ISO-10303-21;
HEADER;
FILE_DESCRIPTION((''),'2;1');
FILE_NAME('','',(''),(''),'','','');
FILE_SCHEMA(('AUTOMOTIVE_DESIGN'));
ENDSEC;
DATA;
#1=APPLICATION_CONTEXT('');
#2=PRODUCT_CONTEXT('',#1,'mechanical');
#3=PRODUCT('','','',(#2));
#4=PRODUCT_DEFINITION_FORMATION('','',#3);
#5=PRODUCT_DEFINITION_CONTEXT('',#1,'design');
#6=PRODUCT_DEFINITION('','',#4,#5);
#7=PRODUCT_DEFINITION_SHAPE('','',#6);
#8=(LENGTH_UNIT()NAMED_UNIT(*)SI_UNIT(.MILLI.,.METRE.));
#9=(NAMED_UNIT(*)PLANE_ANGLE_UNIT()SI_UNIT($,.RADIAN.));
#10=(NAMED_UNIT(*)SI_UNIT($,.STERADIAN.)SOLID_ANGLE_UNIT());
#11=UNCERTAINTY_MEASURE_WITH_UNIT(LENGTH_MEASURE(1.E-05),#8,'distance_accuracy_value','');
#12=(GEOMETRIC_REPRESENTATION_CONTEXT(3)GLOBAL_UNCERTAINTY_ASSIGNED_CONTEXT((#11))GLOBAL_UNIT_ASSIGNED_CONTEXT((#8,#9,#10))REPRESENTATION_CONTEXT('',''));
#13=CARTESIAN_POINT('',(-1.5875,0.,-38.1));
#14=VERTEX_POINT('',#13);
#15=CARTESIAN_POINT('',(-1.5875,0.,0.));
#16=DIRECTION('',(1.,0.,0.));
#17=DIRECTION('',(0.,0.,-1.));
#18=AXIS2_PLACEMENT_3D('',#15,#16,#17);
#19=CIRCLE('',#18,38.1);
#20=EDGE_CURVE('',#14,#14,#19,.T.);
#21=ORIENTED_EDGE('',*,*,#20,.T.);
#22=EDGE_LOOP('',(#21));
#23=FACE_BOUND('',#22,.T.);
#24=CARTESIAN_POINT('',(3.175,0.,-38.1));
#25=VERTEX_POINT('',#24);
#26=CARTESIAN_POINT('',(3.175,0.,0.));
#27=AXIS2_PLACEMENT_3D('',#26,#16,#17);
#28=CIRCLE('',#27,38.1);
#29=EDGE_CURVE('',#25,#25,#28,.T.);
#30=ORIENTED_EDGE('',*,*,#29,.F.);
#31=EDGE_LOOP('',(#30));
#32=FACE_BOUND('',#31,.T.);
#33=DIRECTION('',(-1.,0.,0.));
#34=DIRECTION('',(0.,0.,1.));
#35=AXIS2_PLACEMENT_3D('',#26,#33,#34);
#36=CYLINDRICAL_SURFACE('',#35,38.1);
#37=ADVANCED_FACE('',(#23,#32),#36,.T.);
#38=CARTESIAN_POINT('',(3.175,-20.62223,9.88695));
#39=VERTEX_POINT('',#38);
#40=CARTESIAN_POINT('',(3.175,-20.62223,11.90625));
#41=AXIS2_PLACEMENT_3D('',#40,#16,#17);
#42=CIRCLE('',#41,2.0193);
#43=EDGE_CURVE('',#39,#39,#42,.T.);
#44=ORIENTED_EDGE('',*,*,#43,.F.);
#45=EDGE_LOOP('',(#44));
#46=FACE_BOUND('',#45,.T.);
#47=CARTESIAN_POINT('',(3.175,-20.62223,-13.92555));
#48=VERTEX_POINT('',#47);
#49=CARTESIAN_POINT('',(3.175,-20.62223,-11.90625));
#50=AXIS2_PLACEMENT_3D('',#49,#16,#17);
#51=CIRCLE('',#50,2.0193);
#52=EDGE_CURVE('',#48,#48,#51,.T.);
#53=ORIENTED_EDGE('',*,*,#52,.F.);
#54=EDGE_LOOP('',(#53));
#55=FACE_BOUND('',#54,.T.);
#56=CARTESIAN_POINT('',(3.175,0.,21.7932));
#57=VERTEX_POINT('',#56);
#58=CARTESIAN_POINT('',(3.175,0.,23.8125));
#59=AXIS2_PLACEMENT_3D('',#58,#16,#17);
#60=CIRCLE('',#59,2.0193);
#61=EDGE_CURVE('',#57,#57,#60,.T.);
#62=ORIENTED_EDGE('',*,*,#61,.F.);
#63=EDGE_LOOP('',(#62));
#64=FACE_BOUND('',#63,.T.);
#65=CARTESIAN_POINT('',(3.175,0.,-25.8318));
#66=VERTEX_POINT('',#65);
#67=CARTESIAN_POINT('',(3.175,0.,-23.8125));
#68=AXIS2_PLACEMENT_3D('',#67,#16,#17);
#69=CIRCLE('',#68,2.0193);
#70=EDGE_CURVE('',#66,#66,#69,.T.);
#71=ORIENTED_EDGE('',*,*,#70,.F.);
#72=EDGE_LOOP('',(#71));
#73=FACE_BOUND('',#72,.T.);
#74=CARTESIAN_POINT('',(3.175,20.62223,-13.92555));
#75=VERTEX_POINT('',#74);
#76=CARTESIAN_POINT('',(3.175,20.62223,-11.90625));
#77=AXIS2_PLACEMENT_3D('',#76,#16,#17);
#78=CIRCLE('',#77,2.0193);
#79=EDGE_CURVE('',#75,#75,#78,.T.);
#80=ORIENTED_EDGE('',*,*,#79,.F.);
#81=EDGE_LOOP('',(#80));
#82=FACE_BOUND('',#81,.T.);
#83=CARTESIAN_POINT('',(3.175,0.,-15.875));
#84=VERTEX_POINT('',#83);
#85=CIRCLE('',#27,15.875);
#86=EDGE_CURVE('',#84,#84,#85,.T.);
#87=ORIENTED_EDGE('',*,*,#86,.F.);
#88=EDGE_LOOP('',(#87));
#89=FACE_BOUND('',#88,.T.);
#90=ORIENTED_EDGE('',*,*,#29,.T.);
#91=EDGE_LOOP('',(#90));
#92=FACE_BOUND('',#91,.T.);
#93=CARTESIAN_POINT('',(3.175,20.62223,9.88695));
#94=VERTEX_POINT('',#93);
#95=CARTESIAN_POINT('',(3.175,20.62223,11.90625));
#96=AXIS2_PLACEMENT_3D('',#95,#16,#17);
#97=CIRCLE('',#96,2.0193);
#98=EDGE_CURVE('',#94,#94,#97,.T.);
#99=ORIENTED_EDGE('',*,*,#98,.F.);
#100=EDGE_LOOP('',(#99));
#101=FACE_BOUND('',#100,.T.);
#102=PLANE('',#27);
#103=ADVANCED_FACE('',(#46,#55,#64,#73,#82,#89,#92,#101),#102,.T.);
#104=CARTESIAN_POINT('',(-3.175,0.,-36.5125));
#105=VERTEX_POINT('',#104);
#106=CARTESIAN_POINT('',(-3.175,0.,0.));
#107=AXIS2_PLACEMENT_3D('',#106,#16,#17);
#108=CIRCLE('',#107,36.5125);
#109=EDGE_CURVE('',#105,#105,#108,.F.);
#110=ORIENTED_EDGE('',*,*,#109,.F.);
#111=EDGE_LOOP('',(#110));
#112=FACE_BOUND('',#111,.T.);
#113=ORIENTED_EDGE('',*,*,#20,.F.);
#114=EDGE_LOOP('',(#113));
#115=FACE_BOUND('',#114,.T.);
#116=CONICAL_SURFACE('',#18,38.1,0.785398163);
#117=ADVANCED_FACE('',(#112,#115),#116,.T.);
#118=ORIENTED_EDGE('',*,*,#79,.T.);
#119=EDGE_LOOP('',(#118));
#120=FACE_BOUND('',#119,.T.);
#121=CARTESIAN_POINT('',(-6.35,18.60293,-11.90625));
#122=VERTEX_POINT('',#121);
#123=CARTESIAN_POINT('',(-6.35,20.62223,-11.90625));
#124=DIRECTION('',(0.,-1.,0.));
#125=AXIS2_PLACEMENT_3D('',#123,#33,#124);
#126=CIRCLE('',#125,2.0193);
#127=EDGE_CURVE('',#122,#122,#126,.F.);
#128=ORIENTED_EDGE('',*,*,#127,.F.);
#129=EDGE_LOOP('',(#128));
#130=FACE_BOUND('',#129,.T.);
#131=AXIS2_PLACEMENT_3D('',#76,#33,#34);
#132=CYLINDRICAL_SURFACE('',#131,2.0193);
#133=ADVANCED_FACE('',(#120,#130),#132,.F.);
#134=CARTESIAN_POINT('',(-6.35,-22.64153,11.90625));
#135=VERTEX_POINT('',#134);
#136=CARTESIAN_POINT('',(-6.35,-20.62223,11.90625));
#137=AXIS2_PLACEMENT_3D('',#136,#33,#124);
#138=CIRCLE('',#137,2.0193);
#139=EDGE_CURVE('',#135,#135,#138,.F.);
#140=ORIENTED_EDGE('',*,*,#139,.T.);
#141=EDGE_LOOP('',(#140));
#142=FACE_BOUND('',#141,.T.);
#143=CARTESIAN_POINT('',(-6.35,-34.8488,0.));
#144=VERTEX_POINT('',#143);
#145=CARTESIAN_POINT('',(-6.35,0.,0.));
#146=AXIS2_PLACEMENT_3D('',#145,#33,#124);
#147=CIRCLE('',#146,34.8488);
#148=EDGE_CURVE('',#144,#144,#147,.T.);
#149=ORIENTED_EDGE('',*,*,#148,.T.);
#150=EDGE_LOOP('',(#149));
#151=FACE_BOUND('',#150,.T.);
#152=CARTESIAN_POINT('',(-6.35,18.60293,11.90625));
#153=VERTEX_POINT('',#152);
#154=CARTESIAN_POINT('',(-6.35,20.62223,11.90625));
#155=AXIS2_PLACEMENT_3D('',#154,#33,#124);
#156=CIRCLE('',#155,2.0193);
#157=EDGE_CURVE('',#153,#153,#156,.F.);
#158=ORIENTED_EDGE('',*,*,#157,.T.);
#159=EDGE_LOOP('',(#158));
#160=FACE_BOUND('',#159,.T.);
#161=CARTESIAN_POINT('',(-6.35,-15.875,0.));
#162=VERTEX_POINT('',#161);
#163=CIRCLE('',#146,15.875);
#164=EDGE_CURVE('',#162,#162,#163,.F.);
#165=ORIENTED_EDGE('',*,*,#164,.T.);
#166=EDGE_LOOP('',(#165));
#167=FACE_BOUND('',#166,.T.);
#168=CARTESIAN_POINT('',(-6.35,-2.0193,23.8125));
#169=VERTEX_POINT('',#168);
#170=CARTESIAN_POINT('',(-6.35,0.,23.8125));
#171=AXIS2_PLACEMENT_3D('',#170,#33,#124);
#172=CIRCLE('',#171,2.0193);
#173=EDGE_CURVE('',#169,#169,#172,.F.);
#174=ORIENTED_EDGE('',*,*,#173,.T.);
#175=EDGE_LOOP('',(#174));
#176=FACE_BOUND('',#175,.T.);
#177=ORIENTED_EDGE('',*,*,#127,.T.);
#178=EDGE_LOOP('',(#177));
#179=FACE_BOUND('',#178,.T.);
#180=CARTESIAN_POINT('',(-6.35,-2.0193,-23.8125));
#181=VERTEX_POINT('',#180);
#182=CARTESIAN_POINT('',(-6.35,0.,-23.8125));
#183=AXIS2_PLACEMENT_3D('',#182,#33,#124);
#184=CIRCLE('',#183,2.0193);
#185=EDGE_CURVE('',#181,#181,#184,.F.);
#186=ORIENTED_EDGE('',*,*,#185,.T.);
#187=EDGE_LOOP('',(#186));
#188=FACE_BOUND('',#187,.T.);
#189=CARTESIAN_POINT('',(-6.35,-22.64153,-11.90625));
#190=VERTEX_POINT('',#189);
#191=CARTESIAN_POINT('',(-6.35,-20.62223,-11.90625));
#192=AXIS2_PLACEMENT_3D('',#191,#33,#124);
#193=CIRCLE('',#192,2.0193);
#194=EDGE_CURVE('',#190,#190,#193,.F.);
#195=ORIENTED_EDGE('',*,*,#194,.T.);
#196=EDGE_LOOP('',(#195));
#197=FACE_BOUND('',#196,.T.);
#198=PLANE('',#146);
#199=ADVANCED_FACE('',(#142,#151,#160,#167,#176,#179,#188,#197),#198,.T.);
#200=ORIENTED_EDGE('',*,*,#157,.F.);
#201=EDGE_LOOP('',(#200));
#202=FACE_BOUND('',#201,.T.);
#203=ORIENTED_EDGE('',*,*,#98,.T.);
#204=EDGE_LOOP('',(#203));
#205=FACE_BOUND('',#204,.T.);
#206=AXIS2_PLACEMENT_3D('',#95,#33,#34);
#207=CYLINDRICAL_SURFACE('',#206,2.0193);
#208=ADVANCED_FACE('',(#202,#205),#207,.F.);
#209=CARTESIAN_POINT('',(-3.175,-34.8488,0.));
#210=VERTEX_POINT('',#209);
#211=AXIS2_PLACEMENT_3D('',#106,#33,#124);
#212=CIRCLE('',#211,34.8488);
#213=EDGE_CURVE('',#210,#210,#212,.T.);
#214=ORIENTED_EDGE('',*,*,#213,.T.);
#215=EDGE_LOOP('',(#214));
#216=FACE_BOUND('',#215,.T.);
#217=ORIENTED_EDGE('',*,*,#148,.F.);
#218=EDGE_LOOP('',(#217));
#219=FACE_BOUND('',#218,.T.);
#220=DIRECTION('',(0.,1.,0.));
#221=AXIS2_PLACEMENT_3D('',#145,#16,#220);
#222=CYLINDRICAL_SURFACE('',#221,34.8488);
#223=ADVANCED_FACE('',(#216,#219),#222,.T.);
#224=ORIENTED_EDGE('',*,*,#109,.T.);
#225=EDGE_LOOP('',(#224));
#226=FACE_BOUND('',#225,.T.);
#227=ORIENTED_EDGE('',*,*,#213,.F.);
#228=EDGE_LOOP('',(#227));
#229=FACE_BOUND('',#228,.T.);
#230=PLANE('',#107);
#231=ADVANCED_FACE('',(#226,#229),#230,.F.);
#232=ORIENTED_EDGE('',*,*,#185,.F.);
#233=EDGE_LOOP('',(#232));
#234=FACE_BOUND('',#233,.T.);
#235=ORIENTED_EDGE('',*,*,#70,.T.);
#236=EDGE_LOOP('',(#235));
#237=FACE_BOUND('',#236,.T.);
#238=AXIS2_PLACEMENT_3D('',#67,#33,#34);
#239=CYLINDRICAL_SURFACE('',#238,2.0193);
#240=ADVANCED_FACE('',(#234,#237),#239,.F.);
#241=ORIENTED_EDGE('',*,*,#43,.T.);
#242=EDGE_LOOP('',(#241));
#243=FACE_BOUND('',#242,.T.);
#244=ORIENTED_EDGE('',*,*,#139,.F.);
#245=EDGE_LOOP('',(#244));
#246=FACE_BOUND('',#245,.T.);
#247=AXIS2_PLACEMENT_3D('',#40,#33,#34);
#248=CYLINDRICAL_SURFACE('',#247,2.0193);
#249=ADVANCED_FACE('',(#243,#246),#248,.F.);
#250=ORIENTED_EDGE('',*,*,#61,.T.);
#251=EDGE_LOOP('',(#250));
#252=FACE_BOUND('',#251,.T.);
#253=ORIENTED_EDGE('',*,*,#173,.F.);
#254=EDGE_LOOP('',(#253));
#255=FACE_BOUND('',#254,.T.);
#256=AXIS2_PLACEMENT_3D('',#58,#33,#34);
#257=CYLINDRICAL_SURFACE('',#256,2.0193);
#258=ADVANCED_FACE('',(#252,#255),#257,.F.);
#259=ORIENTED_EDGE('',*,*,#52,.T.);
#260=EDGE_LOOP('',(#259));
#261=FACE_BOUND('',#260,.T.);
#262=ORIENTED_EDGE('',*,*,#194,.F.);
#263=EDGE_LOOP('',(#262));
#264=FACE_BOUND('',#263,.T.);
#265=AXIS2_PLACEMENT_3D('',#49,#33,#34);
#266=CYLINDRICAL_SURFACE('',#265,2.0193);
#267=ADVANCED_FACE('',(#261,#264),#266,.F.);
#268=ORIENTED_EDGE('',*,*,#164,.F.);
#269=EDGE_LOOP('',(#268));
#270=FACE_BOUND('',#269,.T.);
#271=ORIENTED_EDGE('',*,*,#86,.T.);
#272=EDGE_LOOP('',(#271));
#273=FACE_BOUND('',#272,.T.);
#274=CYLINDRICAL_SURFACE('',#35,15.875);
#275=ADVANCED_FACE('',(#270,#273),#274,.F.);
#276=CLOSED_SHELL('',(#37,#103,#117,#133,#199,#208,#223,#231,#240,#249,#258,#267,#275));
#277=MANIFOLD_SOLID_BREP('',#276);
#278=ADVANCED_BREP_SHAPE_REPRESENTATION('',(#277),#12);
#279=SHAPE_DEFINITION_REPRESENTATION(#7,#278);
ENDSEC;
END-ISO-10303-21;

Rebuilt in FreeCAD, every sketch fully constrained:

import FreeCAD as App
import Part
import Sketcher

V = App.Vector
Q = App.Units.Quantity


def edges_at(feature, points):
    """Names of the edges that pass closest to the given points."""
    edges = feature.Shape.Edges
    near = lambda p: min(range(len(edges)), key=lambda i: edges[i].distToShape(Part.Vertex(*p))[0])
    return sorted({f"Edge{near(p) + 1}" for p in points})

doc = App.newDocument("Part")
body = doc.addObject("PartDesign::Body", "Body")

sketch1 = body.newObject("Sketcher::SketchObject", "Sketch")
sketch1.AttachmentSupport = (doc.getObject("YZ_Plane"), [""])
sketch1.MapMode = "FlatFace"
sketch1.addGeometry([
    Part.Circle(V(0, 0, 0), V(0, 0, 1), 38.1),
    Part.Circle(V(-20.6, 11.9, 0), V(0, 0, 1), 2),
    Part.Circle(V(-20.6, -11.9, 0), V(0, 0, 1), 2),
    Part.Circle(V(0, 23.8, 0), V(0, 0, 1), 2),
    Part.Circle(V(0, 0, 0), V(0, 0, 1), 15.9),
    Part.Circle(V(20.6, 11.9, 0), V(0, 0, 1), 2),
    Part.Circle(V(0, -23.8, 0), V(0, 0, 1), 2),
    Part.Circle(V(20.6, -11.9, 0), V(0, 0, 1), 2),
], False)
sketch1.addConstraint([
    Sketcher.Constraint("Coincident", 0, 3, -1, 1),
    Sketcher.Constraint("Coincident", 4, 3, -1, 1),
    Sketcher.Constraint("Equal", 1, 2),
    Sketcher.Constraint("Equal", 2, 3),
    Sketcher.Constraint("Equal", 3, 5),
    Sketcher.Constraint("Equal", 5, 6),
    Sketcher.Constraint("Equal", 6, 7),
    Sketcher.Constraint("Symmetric", 2, 3, 5, 3, -1, 1),
    Sketcher.Constraint("Symmetric", 3, 3, 6, 3, -1, 1),
    Sketcher.Constraint("Symmetric", 1, 3, 7, 3, -1, 1),
    Sketcher.Constraint("Symmetric", 1, 3, 5, 3, -2),
    Sketcher.Constraint("PointOnObject", 3, 3, -2),
    Sketcher.Constraint("Diameter", 0, Q("3 in")),
    Sketcher.Constraint("Diameter", 4, Q("1.25 in")),
    Sketcher.Constraint("Diameter", 1, Q("0.159 in")),
    Sketcher.Constraint("DistanceY", -1, 1, 1, 3, Q("0.46875 in")),
    Sketcher.Constraint("DistanceY", -1, 1, 3, 3, Q("0.9375 in")),
    Sketcher.Constraint("DistanceX", 1, 3, -1, 1, Q("20.62223 mm")),
])
pad1 = body.newObject("PartDesign::Pad", "Pad")
pad1.Profile = sketch1
pad1.Length = Q("0.25 in")
pad1.Midplane = True

sketch2 = body.newObject("Sketcher::SketchObject", "Sketch001")
sketch2.AttachmentSupport = (doc.getObject("YZ_Plane"), [""])
sketch2.MapMode = "FlatFace"
sketch2.AttachmentOffset = App.Placement(V(0, 0, -0.25 * 25.4), App.Rotation())
sketch2.addGeometry([
    Part.Circle(V(0, 0, 0), V(0, 0, 1), 34.8),
    Part.Circle(V(20.6, -11.9, 0), V(0, 0, 1), 2),
    Part.Circle(V(0, -23.8, 0), V(0, 0, 1), 2),
    Part.Circle(V(0, 0, 0), V(0, 0, 1), 15.9),
    Part.Circle(V(-20.6, -11.9, 0), V(0, 0, 1), 2),
    Part.Circle(V(20.6, 11.9, 0), V(0, 0, 1), 2),
    Part.Circle(V(0, 23.8, 0), V(0, 0, 1), 2),
    Part.Circle(V(-20.6, 11.9, 0), V(0, 0, 1), 2),
], False)
sketch2.addConstraint([
    Sketcher.Constraint("Coincident", 0, 3, -1, 1),
    Sketcher.Constraint("Coincident", 3, 3, -1, 1),
    Sketcher.Constraint("Equal", 1, 2),
    Sketcher.Constraint("Equal", 2, 4),
    Sketcher.Constraint("Equal", 4, 5),
    Sketcher.Constraint("Equal", 5, 6),
    Sketcher.Constraint("Equal", 6, 7),
    Sketcher.Constraint("Symmetric", 4, 3, 5, 3, -1, 1),
    Sketcher.Constraint("Symmetric", 2, 3, 6, 3, -1, 1),
    Sketcher.Constraint("Symmetric", 1, 3, 7, 3, -1, 1),
    Sketcher.Constraint("Symmetric", 1, 3, 4, 3, -2),
    Sketcher.Constraint("PointOnObject", 2, 3, -2),
    Sketcher.Constraint("Diameter", 3, Q("1.25 in")),
    Sketcher.Constraint("Diameter", 0, Q("2.744 in")),
    Sketcher.Constraint("Diameter", 1, Q("0.159 in")),
    Sketcher.Constraint("DistanceY", 1, 3, -1, 1, Q("0.46875 in")),
    Sketcher.Constraint("DistanceY", 2, 3, -1, 1, Q("0.9375 in")),
    Sketcher.Constraint("DistanceX", -1, 1, 1, 3, Q("20.62223 mm")),
])
pad2 = body.newObject("PartDesign::Pad", "Pad001")
pad2.Profile = sketch2
pad2.Length = Q("0.125 in")
doc.recompute()

chamfer = body.newObject("PartDesign::Chamfer", "Chamfer")
chamfer.Base = (pad2, edges_at(pad2, [(-3.175, 0, 38.1)]))
chamfer.Size = Q("0.0625 in")

doc.recompute()
